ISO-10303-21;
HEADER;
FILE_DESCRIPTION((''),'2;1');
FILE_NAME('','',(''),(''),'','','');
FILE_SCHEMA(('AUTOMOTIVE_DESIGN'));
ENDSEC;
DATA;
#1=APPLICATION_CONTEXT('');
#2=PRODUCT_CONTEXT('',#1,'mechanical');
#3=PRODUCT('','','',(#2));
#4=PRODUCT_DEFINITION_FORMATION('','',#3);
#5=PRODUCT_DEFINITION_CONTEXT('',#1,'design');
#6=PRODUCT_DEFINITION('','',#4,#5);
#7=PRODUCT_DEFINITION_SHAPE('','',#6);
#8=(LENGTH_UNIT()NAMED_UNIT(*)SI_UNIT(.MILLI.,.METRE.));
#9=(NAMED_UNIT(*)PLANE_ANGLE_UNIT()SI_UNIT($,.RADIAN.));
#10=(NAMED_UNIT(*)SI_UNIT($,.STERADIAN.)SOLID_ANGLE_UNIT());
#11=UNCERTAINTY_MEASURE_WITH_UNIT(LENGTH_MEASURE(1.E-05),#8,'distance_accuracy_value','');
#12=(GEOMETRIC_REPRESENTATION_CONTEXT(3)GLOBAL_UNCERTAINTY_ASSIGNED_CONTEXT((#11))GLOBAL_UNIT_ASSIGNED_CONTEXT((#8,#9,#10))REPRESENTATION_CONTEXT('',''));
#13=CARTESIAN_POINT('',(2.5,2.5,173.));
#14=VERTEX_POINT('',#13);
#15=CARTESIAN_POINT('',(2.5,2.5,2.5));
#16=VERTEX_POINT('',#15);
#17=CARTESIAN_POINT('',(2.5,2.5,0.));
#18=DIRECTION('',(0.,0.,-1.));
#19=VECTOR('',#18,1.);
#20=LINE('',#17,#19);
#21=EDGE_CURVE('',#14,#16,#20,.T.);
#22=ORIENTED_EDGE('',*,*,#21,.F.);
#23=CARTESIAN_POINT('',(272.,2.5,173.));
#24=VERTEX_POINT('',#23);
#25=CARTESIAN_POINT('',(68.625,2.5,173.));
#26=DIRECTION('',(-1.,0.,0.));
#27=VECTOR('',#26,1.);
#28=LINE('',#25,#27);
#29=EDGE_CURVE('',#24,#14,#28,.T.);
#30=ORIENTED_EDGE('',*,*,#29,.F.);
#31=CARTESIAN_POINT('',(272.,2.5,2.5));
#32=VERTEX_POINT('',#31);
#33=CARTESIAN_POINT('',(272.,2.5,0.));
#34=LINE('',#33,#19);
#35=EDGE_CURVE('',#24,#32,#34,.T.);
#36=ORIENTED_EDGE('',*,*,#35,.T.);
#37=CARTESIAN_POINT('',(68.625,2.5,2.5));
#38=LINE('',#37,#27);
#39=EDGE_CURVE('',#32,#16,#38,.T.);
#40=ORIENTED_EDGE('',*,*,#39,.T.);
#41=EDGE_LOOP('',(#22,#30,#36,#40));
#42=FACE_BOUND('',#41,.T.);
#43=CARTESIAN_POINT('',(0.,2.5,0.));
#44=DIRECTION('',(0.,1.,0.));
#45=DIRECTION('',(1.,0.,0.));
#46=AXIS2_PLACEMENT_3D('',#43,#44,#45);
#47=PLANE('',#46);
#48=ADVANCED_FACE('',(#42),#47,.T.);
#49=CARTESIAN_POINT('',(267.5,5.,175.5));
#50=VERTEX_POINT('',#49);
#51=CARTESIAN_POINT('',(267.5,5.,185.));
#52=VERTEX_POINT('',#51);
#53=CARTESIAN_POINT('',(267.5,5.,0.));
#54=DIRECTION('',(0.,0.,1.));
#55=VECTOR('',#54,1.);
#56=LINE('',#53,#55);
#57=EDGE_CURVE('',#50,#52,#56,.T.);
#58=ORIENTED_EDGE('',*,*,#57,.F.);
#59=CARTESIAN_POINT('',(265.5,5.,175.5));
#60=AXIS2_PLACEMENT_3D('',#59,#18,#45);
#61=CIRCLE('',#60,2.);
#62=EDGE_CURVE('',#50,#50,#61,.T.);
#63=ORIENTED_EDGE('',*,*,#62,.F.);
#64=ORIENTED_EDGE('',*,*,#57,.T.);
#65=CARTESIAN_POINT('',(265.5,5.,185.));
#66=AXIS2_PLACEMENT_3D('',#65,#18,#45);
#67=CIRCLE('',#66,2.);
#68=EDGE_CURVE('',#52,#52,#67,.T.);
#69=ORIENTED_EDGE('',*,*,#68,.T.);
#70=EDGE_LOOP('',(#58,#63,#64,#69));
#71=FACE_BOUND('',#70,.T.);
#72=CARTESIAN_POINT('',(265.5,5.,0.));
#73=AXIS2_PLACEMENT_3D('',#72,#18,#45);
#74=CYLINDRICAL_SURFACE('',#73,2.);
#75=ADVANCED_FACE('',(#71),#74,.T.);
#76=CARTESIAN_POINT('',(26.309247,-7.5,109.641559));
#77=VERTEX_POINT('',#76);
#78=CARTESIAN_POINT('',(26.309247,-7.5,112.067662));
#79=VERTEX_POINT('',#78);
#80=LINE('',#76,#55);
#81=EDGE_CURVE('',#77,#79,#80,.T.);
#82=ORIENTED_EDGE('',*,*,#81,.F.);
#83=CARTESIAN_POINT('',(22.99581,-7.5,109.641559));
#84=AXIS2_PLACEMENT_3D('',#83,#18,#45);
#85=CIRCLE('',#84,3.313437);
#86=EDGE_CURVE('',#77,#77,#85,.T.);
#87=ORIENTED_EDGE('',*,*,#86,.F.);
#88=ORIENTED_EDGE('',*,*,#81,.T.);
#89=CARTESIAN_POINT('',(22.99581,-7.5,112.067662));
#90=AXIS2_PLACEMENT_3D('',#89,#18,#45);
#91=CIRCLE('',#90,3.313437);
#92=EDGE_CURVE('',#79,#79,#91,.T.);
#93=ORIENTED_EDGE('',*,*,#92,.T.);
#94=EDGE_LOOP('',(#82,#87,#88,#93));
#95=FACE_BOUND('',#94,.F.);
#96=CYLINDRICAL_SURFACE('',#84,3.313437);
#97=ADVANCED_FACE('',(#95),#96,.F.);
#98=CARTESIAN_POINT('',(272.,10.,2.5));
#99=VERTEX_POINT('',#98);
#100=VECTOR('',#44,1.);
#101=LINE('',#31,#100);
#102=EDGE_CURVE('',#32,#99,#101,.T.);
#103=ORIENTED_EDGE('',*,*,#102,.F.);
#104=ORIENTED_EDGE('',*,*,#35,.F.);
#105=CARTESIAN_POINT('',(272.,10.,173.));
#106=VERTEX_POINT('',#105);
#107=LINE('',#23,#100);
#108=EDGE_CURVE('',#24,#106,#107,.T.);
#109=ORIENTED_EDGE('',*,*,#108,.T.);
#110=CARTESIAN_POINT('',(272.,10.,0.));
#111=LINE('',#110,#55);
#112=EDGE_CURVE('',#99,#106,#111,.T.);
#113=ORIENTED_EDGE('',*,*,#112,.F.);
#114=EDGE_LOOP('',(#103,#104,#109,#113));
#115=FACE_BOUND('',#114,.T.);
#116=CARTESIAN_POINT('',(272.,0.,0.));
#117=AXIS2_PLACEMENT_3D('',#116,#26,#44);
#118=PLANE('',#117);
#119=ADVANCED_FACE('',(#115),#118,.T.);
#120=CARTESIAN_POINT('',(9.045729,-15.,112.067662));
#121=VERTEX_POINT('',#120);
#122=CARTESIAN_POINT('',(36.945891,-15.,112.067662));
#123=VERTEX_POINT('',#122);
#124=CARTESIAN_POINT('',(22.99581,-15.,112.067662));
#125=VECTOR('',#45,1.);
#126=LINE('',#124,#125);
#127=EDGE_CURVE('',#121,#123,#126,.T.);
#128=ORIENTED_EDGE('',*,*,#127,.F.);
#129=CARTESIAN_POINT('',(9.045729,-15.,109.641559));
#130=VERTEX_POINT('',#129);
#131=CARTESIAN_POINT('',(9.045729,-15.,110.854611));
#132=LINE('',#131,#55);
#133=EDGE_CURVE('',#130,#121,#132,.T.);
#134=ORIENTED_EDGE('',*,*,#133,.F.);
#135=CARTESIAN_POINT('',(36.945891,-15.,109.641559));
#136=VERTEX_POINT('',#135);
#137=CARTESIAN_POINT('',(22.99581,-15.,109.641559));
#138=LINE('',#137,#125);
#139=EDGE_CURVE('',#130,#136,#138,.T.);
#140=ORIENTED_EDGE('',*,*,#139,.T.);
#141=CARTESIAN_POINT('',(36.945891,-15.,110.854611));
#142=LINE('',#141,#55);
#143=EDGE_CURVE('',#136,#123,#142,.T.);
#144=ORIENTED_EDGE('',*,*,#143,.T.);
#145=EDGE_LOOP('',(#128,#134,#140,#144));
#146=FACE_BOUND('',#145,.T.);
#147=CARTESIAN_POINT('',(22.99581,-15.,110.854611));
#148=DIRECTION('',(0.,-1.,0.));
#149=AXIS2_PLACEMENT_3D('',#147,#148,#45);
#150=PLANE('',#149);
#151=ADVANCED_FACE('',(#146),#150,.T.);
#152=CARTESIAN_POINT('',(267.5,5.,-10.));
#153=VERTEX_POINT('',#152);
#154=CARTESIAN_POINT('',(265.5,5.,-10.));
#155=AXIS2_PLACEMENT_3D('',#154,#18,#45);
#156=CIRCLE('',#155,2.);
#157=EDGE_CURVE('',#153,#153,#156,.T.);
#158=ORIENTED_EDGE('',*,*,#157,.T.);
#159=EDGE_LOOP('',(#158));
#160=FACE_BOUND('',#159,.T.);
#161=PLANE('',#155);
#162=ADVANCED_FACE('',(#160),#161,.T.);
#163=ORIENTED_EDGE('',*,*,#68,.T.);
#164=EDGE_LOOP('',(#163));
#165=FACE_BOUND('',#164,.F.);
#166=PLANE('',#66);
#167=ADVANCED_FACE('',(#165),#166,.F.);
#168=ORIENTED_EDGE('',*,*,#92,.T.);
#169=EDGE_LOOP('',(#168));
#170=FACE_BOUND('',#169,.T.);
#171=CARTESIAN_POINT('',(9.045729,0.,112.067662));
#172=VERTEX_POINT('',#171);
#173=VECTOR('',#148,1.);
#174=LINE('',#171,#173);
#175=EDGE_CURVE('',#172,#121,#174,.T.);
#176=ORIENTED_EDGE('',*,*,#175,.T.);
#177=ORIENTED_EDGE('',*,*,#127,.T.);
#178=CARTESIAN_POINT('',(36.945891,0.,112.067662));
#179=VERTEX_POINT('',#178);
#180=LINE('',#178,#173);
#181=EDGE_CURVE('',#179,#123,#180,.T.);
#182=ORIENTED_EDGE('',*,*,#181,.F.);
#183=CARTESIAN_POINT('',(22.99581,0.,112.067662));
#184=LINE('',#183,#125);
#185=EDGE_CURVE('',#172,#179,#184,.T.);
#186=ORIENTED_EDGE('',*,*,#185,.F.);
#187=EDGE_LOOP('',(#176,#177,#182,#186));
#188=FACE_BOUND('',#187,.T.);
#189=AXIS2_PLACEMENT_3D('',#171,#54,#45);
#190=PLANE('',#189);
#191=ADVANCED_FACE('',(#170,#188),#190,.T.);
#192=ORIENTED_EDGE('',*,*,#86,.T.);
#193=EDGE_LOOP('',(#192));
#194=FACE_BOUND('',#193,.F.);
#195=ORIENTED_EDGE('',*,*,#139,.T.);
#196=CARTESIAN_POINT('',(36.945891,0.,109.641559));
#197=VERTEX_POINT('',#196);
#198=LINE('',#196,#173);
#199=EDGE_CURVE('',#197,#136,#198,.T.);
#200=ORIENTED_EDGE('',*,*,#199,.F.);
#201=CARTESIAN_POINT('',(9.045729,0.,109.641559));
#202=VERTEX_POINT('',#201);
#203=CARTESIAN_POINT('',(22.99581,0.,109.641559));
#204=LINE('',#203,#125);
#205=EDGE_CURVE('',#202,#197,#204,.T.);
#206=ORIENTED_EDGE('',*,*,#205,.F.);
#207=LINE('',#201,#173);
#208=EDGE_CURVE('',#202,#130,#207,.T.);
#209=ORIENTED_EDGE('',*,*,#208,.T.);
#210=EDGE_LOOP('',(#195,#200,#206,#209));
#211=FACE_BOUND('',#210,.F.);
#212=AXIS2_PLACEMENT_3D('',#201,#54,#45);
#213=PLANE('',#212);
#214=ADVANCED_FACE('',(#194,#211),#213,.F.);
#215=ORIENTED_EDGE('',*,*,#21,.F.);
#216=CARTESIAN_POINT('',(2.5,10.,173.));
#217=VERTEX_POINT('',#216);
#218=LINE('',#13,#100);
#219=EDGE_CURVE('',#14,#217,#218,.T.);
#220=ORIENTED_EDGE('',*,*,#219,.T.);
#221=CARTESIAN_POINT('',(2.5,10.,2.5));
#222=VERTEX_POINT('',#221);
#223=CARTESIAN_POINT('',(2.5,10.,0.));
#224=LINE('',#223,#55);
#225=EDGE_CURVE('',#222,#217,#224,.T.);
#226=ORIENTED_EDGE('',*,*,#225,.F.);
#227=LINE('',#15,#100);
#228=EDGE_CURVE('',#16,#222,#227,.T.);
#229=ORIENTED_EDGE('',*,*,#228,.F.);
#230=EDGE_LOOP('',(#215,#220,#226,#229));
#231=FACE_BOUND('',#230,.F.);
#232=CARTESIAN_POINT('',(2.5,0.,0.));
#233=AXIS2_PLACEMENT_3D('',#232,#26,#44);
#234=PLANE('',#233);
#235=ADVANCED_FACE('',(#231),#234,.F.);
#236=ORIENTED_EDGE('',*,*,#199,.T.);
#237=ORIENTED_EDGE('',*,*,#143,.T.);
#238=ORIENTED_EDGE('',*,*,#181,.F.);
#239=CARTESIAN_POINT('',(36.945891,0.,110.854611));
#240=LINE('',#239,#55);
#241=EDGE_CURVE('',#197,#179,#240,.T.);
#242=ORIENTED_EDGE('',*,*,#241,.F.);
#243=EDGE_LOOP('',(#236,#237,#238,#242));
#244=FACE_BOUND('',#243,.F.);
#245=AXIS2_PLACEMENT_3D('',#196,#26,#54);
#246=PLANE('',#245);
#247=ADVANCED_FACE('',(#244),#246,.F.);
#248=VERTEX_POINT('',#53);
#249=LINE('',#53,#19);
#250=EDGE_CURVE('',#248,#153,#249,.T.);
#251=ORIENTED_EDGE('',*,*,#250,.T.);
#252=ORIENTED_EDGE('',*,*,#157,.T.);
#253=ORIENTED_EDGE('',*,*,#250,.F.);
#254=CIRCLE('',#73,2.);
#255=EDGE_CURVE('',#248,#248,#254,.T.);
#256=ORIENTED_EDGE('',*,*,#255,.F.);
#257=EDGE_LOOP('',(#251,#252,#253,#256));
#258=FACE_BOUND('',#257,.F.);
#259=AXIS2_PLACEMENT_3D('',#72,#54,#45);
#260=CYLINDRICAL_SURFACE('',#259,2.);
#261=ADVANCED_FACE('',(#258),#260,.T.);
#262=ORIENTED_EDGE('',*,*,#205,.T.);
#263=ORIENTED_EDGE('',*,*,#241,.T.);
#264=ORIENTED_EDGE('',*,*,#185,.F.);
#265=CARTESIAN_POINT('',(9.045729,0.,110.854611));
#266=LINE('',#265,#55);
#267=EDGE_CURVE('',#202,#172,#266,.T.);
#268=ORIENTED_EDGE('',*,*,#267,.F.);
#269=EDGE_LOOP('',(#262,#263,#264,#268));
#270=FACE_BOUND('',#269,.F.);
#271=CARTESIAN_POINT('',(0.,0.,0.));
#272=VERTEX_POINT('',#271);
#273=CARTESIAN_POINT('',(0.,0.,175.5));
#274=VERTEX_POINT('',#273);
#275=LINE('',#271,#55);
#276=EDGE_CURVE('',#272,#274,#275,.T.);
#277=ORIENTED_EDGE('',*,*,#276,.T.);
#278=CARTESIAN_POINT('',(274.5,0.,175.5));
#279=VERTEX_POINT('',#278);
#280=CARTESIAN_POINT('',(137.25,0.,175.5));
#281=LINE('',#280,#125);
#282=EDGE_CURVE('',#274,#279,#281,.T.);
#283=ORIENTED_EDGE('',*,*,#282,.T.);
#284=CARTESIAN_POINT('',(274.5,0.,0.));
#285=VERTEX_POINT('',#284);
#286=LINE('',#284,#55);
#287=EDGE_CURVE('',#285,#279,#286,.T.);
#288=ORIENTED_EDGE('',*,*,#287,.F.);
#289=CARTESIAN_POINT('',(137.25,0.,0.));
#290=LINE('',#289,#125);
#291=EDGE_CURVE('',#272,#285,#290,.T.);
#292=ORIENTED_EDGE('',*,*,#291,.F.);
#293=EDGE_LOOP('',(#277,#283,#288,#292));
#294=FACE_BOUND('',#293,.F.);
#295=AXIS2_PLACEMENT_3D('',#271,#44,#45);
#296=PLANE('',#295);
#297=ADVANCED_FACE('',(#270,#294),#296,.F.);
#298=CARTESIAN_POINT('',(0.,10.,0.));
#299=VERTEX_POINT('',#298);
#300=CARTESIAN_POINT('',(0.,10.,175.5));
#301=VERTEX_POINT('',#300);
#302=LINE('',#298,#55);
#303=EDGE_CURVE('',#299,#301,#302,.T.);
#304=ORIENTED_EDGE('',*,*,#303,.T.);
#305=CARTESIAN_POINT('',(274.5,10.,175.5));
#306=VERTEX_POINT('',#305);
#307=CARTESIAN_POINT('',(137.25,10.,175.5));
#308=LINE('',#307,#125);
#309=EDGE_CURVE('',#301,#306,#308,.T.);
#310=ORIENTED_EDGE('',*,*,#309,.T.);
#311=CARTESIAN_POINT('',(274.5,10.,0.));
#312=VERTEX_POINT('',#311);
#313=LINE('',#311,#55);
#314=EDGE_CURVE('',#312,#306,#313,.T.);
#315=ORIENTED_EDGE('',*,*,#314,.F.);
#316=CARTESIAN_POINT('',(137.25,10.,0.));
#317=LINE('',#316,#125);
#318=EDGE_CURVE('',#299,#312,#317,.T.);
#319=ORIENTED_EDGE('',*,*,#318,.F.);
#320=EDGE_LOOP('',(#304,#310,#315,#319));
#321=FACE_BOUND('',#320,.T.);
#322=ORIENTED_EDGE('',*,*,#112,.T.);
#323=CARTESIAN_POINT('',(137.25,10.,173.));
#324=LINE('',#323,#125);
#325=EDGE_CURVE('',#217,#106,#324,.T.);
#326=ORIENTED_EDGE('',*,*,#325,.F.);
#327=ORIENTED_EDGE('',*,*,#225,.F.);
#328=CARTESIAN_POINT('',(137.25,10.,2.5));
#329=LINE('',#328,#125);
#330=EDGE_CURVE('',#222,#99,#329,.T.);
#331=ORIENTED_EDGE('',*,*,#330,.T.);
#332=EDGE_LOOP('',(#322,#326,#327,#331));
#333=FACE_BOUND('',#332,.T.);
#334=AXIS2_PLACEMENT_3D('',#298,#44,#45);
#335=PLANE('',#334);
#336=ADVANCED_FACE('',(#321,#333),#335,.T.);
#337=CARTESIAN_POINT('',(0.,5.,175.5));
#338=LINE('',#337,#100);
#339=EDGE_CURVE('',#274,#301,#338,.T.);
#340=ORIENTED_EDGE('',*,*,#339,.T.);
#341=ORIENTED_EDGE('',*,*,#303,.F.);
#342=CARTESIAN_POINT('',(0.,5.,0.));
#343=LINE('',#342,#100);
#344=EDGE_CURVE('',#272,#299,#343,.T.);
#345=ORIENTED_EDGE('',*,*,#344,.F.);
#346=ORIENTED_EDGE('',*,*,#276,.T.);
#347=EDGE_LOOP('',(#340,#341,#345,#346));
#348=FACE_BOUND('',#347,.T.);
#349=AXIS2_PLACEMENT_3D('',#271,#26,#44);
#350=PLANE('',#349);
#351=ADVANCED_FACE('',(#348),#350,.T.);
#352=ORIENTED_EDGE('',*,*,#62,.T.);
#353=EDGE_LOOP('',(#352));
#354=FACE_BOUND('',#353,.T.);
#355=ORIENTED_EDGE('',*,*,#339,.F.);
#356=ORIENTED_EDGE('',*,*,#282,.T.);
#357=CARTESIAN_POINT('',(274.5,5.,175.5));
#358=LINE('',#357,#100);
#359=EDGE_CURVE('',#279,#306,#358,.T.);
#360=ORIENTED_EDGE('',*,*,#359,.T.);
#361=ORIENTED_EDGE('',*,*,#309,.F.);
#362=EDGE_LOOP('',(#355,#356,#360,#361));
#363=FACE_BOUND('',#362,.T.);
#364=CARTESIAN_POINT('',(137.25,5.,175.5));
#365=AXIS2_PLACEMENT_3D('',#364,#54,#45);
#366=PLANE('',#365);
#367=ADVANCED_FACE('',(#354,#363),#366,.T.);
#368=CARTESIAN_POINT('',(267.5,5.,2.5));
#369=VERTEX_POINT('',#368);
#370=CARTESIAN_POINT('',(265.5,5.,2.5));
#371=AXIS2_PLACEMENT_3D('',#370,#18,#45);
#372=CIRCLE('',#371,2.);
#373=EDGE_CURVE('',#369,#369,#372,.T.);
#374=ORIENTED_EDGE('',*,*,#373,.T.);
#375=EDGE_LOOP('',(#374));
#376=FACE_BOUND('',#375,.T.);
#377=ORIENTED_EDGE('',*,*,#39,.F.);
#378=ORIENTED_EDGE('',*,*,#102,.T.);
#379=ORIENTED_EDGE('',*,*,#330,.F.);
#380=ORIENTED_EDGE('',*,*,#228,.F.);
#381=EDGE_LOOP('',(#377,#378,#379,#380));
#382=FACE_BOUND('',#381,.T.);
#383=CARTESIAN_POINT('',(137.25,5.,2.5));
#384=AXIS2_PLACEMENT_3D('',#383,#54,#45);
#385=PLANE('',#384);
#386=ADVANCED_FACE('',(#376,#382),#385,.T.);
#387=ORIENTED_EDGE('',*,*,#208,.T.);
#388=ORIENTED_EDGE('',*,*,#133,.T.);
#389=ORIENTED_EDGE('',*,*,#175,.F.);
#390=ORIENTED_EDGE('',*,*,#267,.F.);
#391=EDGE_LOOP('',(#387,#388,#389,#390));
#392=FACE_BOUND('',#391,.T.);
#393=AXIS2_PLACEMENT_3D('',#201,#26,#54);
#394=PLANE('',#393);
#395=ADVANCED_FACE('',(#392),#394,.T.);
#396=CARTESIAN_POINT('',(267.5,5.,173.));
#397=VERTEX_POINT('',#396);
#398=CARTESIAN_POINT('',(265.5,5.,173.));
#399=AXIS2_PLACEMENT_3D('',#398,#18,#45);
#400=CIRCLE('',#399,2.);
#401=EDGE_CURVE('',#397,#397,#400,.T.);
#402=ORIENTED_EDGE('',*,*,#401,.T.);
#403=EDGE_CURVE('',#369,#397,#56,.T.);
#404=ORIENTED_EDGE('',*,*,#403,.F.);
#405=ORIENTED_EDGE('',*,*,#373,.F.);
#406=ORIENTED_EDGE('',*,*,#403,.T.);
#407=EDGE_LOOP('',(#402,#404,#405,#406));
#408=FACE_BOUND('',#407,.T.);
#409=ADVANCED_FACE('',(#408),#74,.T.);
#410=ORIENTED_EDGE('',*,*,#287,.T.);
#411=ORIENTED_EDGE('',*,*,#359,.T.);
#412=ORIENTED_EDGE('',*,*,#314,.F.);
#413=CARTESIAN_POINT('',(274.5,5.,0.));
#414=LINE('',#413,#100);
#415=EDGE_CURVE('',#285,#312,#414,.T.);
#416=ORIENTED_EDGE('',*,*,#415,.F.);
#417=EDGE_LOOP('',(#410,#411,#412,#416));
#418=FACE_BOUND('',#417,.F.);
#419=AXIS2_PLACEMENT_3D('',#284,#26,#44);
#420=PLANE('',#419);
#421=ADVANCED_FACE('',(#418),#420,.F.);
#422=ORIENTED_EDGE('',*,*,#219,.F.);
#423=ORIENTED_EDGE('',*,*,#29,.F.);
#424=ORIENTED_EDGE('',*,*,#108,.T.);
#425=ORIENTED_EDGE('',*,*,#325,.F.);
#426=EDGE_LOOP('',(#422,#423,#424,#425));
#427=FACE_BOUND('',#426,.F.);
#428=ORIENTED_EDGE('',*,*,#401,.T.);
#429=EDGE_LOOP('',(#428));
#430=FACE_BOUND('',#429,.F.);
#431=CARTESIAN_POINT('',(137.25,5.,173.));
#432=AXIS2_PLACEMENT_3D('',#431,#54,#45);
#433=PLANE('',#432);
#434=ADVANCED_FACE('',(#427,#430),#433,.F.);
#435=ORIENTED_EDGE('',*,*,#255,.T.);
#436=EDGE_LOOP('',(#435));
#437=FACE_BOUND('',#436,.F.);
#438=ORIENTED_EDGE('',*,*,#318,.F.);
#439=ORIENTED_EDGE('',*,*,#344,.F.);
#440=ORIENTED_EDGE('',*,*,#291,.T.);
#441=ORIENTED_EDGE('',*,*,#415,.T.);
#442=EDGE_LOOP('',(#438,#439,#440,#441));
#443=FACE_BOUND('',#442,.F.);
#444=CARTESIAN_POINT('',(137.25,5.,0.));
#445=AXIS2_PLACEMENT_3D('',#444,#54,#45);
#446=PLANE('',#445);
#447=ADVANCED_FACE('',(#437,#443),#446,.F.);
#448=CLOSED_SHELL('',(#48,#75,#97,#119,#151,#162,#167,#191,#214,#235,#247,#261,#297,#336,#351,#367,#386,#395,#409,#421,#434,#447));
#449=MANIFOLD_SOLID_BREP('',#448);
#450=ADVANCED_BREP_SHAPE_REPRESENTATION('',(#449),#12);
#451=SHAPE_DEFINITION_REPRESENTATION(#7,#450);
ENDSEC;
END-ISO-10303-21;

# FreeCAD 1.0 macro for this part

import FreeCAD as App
import Part
import Sketcher


def faces_at(feature, points):
    """Names of the faces that lie closest to the given points."""
    faces = feature.Shape.Faces
    near = lambda p: min(range(len(faces)), key=lambda i: faces[i].distToShape(Part.Vertex(*p))[0])
    return sorted({f"Face{near(p) + 1}" for p in points})

doc = App.newDocument("Part")
body = doc.addObject("PartDesign::Body", "Body")

sketch1 = body.newObject("Sketcher::SketchObject", "Sketch")
sketch1.AttachmentSupport = (doc.getObject("XY_Plane"), [""])
sketch1.MapMode = "FlatFace"
sketch1.addGeometry([
    Part.LineSegment(App.Vector(0, 10, 0), App.Vector(0, 0, 0)),
    Part.LineSegment(App.Vector(0, 0, 0), App.Vector(274, 0, 0)),
    Part.LineSegment(App.Vector(274, 0, 0), App.Vector(274, 10, 0)),
    Part.LineSegment(App.Vector(274, 10, 0), App.Vector(0, 10, 0)),
], False)
sketch1.addConstraint([
    Sketcher.Constraint("Coincident", 0, 2, 1, 1),
    Sketcher.Constraint("Coincident", 1, 2, 2, 1),
    Sketcher.Constraint("Coincident", 2, 2, 3, 1),
    Sketcher.Constraint("Coincident", 3, 2, 0, 1),
    Sketcher.Constraint("Vertical", 0),
    Sketcher.Constraint("Horizontal", 1),
    Sketcher.Constraint("Vertical", 2),
    Sketcher.Constraint("Horizontal", 3),
    Sketcher.Constraint("Coincident", 0, 2, -1, 1),
    Sketcher.Constraint("DistanceY", 0, 2, 0, 1, 10.0),
    Sketcher.Constraint("DistanceX", 1, 1, 1, 2, 274.5),
])
pad1 = body.newObject("PartDesign::Pad", "Pad")
pad1.Profile = sketch1
pad1.Length = 175.5
doc.recompute()

thickness = body.newObject("PartDesign::Thickness", "Thickness")
thickness.Base = (pad1, faces_at(pad1, [(137.25, 10, 87.75)]))
thickness.Value = 2.5
thickness.Reversed = True
thickness.Join = "Arc"

sketch2 = body.newObject("Sketcher::SketchObject", "Sketch001")
sketch2.AttachmentSupport = (doc.getObject("XY_Plane"), [""])
sketch2.MapMode = "FlatFace"
sketch2.addGeometry(Part.Circle(App.Vector(265.5, 5, 0), App.Vector(0, 0, 1), 2), False)
sketch2.addConstraint([
    Sketcher.Constraint("Diameter", 0, 4.0),
    Sketcher.Constraint("DistanceY", -1, 1, 0, 3, 5.0),
    Sketcher.Constraint("DistanceX", -1, 1, 0, 3, 265.5),
])
pad2 = body.newObject("PartDesign::Pad", "Pad001")
pad2.Profile = sketch2
pad2.Type = "TwoLengths"
pad2.Length = 10
pad2.Length2 = 185
pad2.Reversed = True

sketch3 = body.newObject("Sketcher::SketchObject", "Sketch002")
sketch3.AttachmentSupport = (doc.getObject("XZ_Plane"), [""])
sketch3.MapMode = "FlatFace"
sketch3.addGeometry([
    Part.LineSegment(App.Vector(9, 112.1, 0), App.Vector(9, 109.6, 0)),
    Part.LineSegment(App.Vector(9, 109.6, 0), App.Vector(36.9, 109.6, 0)),
    Part.LineSegment(App.Vector(36.9, 109.6, 0), App.Vector(36.9, 112.1, 0)),
    Part.LineSegment(App.Vector(36.9, 112.1, 0), App.Vector(9, 112.1, 0)),
], False)
sketch3.addConstraint([
    Sketcher.Constraint("Coincident", 0, 2, 1, 1),
    Sketcher.Constraint("Coincident", 1, 2, 2, 1),
    Sketcher.Constraint("Coincident", 2, 2, 3, 1),
    Sketcher.Constraint("Coincident", 3, 2, 0, 1),
    Sketcher.Constraint("Vertical", 0),
    Sketcher.Constraint("Horizontal", 1),
    Sketcher.Constraint("Vertical", 2),
    Sketcher.Constraint("Horizontal", 3),
    Sketcher.Constraint("DistanceX", 1, 1, 1, 2, 27.900162),
    Sketcher.Constraint("DistanceY", 0, 2, 0, 1, 2.426103),
    Sketcher.Constraint("DistanceX", -1, 1, 0, 2, 9.045729),
    Sketcher.Constraint("DistanceY", -1, 1, 0, 2, 109.641559),
])
pad3 = body.newObject("PartDesign::Pad", "Pad002")
pad3.Profile = sketch3
pad3.Length = 15

sketch4 = body.newObject("Sketcher::SketchObject", "Sketch003")
sketch4.AttachmentSupport = (doc.getObject("XY_Plane"), [""])
sketch4.MapMode = "FlatFace"
sketch4.AttachmentOffset = App.Placement(App.Vector(0, 0, 109.641559), App.Rotation())
sketch4.addGeometry(Part.Circle(App.Vector(23, -7.5, 0), App.Vector(0, 0, 1), 3.3), False)
sketch4.addConstraint([
    Sketcher.Constraint("DistanceY", 0, 3, -1, 1, 7.5),
    Sketcher.Constraint("Diameter", 0, 6.626874),
    Sketcher.Constraint("DistanceX", -1, 1, 0, 3, 22.99581),
])
pocket1 = body.newObject("PartDesign::Pocket", "Pocket")
pocket1.Profile = sketch4
pocket1.Length = 25
pocket1.Reversed = True

doc.recompute()
